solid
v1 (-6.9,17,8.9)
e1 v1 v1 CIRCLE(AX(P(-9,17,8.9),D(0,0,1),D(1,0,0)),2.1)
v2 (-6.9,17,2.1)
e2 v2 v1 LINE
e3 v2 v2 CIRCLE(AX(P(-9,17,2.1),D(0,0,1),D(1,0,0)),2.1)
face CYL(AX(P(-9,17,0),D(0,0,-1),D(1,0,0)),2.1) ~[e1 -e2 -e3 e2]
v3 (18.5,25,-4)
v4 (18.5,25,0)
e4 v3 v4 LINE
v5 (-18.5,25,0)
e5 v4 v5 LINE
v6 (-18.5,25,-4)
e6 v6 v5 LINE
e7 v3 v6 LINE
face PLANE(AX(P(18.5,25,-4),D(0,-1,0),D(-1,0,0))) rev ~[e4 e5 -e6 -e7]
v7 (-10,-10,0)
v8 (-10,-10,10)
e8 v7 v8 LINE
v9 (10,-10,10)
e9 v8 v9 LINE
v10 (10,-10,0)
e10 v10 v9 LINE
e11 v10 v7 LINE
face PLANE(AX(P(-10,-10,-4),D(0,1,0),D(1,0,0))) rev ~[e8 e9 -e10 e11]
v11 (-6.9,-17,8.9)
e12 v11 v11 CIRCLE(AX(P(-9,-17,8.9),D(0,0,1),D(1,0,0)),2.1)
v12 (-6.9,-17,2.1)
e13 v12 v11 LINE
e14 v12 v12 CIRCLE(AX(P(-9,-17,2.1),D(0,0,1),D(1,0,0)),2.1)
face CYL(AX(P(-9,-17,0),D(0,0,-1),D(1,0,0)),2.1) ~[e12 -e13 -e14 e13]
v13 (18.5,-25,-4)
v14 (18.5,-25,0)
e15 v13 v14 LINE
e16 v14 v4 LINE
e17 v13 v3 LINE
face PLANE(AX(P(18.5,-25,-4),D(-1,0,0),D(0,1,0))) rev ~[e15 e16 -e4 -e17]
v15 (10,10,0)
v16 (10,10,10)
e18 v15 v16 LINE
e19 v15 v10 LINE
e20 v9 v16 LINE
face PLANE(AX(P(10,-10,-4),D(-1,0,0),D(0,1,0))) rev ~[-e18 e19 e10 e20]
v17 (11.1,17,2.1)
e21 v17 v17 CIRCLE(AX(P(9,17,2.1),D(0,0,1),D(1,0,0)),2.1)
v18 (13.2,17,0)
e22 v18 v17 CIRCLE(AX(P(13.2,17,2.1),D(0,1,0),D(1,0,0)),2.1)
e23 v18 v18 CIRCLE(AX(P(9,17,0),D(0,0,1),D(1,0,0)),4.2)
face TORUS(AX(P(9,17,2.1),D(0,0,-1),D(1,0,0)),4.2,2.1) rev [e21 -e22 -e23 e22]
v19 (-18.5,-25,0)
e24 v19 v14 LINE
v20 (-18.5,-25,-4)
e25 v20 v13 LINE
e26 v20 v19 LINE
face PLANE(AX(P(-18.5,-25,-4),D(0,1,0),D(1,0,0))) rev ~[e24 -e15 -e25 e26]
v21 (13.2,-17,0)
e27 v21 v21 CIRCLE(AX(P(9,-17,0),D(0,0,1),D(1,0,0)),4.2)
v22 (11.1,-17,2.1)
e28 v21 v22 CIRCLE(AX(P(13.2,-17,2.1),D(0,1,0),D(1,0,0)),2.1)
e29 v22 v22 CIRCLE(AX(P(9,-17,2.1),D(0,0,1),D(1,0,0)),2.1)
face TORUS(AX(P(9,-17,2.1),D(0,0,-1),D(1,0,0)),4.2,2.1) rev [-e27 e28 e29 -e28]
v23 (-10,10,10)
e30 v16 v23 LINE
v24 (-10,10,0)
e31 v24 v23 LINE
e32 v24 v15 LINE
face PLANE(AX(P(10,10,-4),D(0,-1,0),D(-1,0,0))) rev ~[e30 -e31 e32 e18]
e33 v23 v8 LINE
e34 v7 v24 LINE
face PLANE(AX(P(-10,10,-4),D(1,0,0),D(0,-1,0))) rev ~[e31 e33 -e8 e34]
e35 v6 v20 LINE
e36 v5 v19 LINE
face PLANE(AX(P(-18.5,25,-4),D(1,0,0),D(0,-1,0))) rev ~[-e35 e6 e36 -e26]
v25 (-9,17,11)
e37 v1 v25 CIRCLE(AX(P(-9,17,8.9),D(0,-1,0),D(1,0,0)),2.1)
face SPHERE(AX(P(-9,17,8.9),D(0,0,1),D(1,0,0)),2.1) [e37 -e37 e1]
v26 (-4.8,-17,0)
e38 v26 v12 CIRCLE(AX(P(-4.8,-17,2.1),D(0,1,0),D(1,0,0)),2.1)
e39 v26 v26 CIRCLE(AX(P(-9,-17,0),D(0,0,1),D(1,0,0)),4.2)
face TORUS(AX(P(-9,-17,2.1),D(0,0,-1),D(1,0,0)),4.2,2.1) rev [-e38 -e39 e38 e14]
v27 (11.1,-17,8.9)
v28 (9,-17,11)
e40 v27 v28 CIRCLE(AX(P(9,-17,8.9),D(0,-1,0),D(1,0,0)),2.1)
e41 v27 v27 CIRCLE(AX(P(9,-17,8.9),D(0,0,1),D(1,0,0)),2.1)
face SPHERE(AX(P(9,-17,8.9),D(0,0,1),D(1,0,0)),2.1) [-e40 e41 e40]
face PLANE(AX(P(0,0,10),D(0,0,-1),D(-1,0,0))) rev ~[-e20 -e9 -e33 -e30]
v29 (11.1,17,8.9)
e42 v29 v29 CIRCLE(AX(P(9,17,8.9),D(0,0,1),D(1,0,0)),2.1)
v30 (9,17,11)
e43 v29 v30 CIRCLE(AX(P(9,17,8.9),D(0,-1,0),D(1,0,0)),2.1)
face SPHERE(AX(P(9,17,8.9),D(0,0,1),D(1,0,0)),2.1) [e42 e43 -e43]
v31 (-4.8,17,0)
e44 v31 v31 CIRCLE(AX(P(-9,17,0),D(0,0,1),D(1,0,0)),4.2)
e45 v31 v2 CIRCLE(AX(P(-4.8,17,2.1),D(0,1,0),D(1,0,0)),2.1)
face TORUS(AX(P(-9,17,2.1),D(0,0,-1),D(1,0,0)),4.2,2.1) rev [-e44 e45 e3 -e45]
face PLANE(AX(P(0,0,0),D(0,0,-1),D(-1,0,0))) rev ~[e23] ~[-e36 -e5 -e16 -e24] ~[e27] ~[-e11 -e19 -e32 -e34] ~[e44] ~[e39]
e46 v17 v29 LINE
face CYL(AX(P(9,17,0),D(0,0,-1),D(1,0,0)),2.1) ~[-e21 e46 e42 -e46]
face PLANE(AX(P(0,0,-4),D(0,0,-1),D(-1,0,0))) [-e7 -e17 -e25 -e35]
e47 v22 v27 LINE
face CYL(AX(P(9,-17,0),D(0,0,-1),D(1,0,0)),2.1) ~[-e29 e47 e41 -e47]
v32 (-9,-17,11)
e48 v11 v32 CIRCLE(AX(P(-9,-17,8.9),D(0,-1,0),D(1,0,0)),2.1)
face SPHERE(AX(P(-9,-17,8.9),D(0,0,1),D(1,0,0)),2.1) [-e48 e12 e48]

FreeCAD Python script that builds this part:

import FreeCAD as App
import Part
import Sketcher
from FreeCAD import Vector
Q = App.Units.Quantity


def edges_at(feature, points):
    """Names of the edges that pass closest to the given points."""
    edges = feature.Shape.Edges
    near = lambda p: min(range(len(edges)), key=lambda i: edges[i].distToShape(Part.Vertex(*p))[0])
    return sorted({f"Edge{near(p) + 1}" for p in points})


def add_polygon(sketch, points):
    """Adds a closed chain of lines whose ends are joined by coincident constraints."""
    first, n = sketch.GeometryCount, len(points)
    for a, b in zip(points, points[1:] + points[:1]):
        sketch.addGeometry(Part.LineSegment(App.Vector(*a, 0), App.Vector(*b, 0)), False)
    for i in range(n):
        sketch.addConstraint(Sketcher.Constraint("Coincident", first + i, 2, first + (i + 1) % n, 1))

doc = App.newDocument("Part")
body = doc.addObject("PartDesign::Body", "Body")
body.AllowCompound = True

# Sketch on XY plane
sketch1 = body.newObject("Sketcher::SketchObject", "Sketch")
sketch1.AttachmentSupport = (doc.getObject("XY_Plane"), [""])
sketch1.MapMode = "FlatFace"
add_polygon(sketch1, [(10, 10), (-10, 10), (-10, -10), (10, -10)])  # lines 0-3
sketch1.addGeometry(Part.Circle(Vector(-8, 15, 0), Vector(0, 0, 1), 2), False)  # 4
sketch1.addGeometry(Part.Circle(Vector(8, 15, 0), Vector(0, 0, 1), 2), False)  # 5
sketch1.addGeometry(Part.Circle(Vector(8, -15, 0), Vector(0, 0, 1), 2), False)  # 6
sketch1.addGeometry(Part.Circle(Vector(-8, -15, 0), Vector(0, 0, 1), 2), False)  # 7
sketch1.addConstraint([
    Sketcher.Constraint("Horizontal", 0),
    Sketcher.Constraint("Vertical", 1),
    Sketcher.Constraint("Horizontal", 2),
    Sketcher.Constraint("Vertical", 3),
    Sketcher.Constraint("Equal", 4, 5),
    Sketcher.Constraint("Equal", 5, 6),
    Sketcher.Constraint("Equal", 6, 7),
    Sketcher.Constraint("Symmetric", 4, 3, 6, 3, -1, 1),
    Sketcher.Constraint("Symmetric", 5, 3, 7, 3, -1, 1),
    Sketcher.Constraint("Symmetric", 0, 2, 2, 2, -1, 1),
    Sketcher.Constraint("Symmetric", 4, 3, 5, 3, -2),
    Sketcher.Constraint("Equal", 2, 1),
    Sketcher.Constraint("Diameter", 4, Q("4.05 mm")),
    Sketcher.Constraint("DistanceX", 0, 2, 0, 1, Q("20 mm")),
    Sketcher.Constraint("DistanceY", 0, 2, 4, 3, Q("5 mm")),
    Sketcher.Constraint("DistanceX", 4, 3, -1, 1, Q("8 mm")),
])
pad1 = body.newObject("PartDesign::Pad", "Pad")
pad1.Profile = sketch1
pad1.Length = 12

# Sketch on XY plane
sketch2 = body.newObject("Sketcher::SketchObject", "Sketch001")
sketch2.AttachmentSupport = (doc.getObject("XY_Plane"), [""])
sketch2.MapMode = "FlatFace"
add_polygon(sketch2, [(16, 23), (-16, 23), (-16, -23), (16, -23)])  # lines 0-3
sketch2.addConstraint([
    Sketcher.Constraint("Horizontal", 0),
    Sketcher.Constraint("Vertical", 1),
    Sketcher.Constraint("Horizontal", 2),
    Sketcher.Constraint("Vertical", 3),
    Sketcher.Constraint("Symmetric", 0, 2, 2, 2, -1, 1),
    Sketcher.Constraint("DistanceX", 0, 2, 0, 1, Q("33 mm")),
    Sketcher.Constraint("DistanceY", 1, 2, 1, 1, Q("46 mm")),
])
pad2 = body.newObject("PartDesign::Pad", "Pad001")
pad2.Profile = sketch2
pad2.Length = 4
pad2.Reversed = True

# Sketch on XY plane
sketch3 = body.newObject("Sketcher::SketchObject", "Sketch002")
sketch3.AttachmentSupport = (doc.getObject("XY_Plane"), [""])
sketch3.MapMode = "FlatFace"
add_polygon(sketch3, [(16, 23), (-16, 23), (-16, -23), (16, -23)])  # lines 0-3
add_polygon(sketch3, [(-14, -20), (-14, 20), (14, 20), (14, -20)])  # lines 4-7
sketch3.addConstraint([
    Sketcher.Constraint("Horizontal", 0),
    Sketcher.Constraint("Vertical", 1),
    Sketcher.Constraint("Horizontal", 2),
    Sketcher.Constraint("Vertical", 3),
    Sketcher.Constraint("Vertical", 4),
    Sketcher.Constraint("Horizontal", 5),
    Sketcher.Constraint("Vertical", 6),
    Sketcher.Constraint("Horizontal", 7),
    Sketcher.Constraint("Symmetric", 0, 2, 2, 2, -1, 1),
    Sketcher.Constraint("Symmetric", 4, 2, 6, 2, -1, 1),
    Sketcher.Constraint("DistanceX", 0, 2, 0, 1, Q("33 mm")),
    Sketcher.Constraint("DistanceX", 5, 1, 5, 2, Q("27 mm")),
    Sketcher.Constraint("DistanceY", 1, 2, 1, 1, Q("46 mm")),
    Sketcher.Constraint("DistanceY", 4, 1, 4, 2, Q("40 mm")),
])
pad3 = body.newObject("PartDesign::Pad", "Pad002")
pad3.Profile = sketch3
pad3.Length = 11

# Sketch on XY plane
sketch4 = body.newObject("Sketcher::SketchObject", "Sketch003")
sketch4.AttachmentSupport = (doc.getObject("XY_Plane"), [""])
sketch4.MapMode = "FlatFace"
sketch4.AttachmentOffset = App.Placement(Vector(0, 0, 12), App.Rotation())
add_polygon(sketch4, [(-10, 10), (-10, -10), (10, -10), (10, 10)])  # lines 0-3
sketch4.addGeometry(Part.Circle(Vector(-8, 15, 0), Vector(0, 0, 1), 2), False)  # 4
sketch4.addGeometry(Part.Circle(Vector(8, 15, 0), Vector(0, 0, 1), 2), False)  # 5
sketch4.addGeometry(Part.Circle(Vector(8, -15, 0), Vector(0, 0, 1), 2), False)  # 6
sketch4.addGeometry(Part.Circle(Vector(-8, -15, 0), Vector(0, 0, 1), 2), False)  # 7
sketch4.addConstraint([
    Sketcher.Constraint("Vertical", 0),
    Sketcher.Constraint("Horizontal", 1),
    Sketcher.Constraint("Vertical", 2),
    Sketcher.Constraint("Horizontal", 3),
    Sketcher.Constraint("Equal", 4, 5),
    Sketcher.Constraint("Equal", 5, 6),
    Sketcher.Constraint("Equal", 6, 7),
    Sketcher.Constraint("Symmetric", 4, 3, 6, 3, -1, 1),
    Sketcher.Constraint("Symmetric", 5, 3, 7, 3, -1, 1),
    Sketcher.Constraint("Symmetric", 0, 2, 2, 2, -1, 1),
    Sketcher.Constraint("Symmetric", 4, 3, 5, 3, -2),
    Sketcher.Constraint("Equal", 3, 0),
    Sketcher.Constraint("Diameter", 4, Q("4.05 mm")),
    Sketcher.Constraint("DistanceX", 1, 1, 1, 2, Q("20 mm")),
    Sketcher.Constraint("DistanceX", 4, 3, -1, 1, Q("8 mm")),
    Sketcher.Constraint("DistanceY", -1, 1, 4, 3, Q("15 mm")),
])
pocket1 = body.newObject("PartDesign::Pocket", "Pocket")
pocket1.Profile = sketch4
pocket1.Length = 16

# Sketch on XY plane
sketch5 = body.newObject("Sketcher::SketchObject", "Sketch004")
sketch5.AttachmentSupport = (doc.getObject("XY_Plane"), [""])
sketch5.MapMode = "FlatFace"
sketch5.AttachmentOffset = App.Placement(Vector(0, 0, -4), App.Rotation())
add_polygon(sketch5, [(10, 10), (10, -10), (-10, -10), (-10, 10)])  # lines 0-3
sketch5.addConstraint([
    Sketcher.Constraint("Vertical", 0),
    Sketcher.Constraint("Horizontal", 1),
    Sketcher.Constraint("Vertical", 2),
    Sketcher.Constraint("Horizontal", 3),
    Sketcher.Constraint("Symmetric", 0, 2, 2, 2, -1, 1),
    Sketcher.Constraint("Equal", 3, 0),
    Sketcher.Constraint("DistanceX", 1, 2, 1, 1, Q("20 mm")),
])
pad4 = body.newObject("PartDesign::Pad", "Pad003")
pad4.Profile = sketch5
pad4.Length = 14

# Sketch on XY plane
sketch6 = body.newObject("Sketcher::SketchObject", "Sketch005")
sketch6.AttachmentSupport = (doc.getObject("XY_Plane"), [""])
sketch6.MapMode = "FlatFace"
sketch6.AttachmentOffset = App.Placement(Vector(0, 0, 11), App.Rotation())
add_polygon(sketch6, [(-16, 23), (-16, -23), (16, -23), (16, 23)])  # lines 0-3
add_polygon(sketch6, [(-14, -20), (-14, 20), (14, 20), (14, -20)])  # lines 4-7
sketch6.addConstraint([
    Sketcher.Constraint("Vertical", 0),
    Sketcher.Constraint("Horizontal", 1),
    Sketcher.Constraint("Vertical", 2),
    Sketcher.Constraint("Horizontal", 3),
    Sketcher.Constraint("Vertical", 4),
    Sketcher.Constraint("Horizontal", 5),
    Sketcher.Constraint("Vertical", 6),
    Sketcher.Constraint("Horizontal", 7),
    Sketcher.Constraint("Symmetric", 0, 2, 2, 2, -1, 1),
    Sketcher.Constraint("Symmetric", 4, 2, 6, 2, -1, 1),
    Sketcher.Constraint("DistanceX", 1, 1, 1, 2, Q("33 mm")),
    Sketcher.Constraint("DistanceX", 5, 1, 5, 2, Q("27 mm")),
    Sketcher.Constraint("DistanceY", 0, 2, 0, 1, Q("46 mm")),
    Sketcher.Constraint("DistanceY", 4, 1, 4, 2, Q("40 mm")),
])
pocket2 = body.newObject("PartDesign::Pocket", "Pocket001")
pocket2.Profile = sketch6
pocket2.Length = 11

# Sketch on XY plane
sketch7 = body.newObject("Sketcher::SketchObject", "Sketch006")
sketch7.AttachmentSupport = (doc.getObject("XY_Plane"), [""])
sketch7.MapMode = "FlatFace"
sketch7.AttachmentOffset = App.Placement(Vector(0, 0, -4), App.Rotation())
sketch7.addGeometry([
    Part.Circle(Vector(8, -15, 0), Vector(0, 0, 1), 2),
    Part.Circle(Vector(-8, -15, 0), Vector(0, 0, 1), 2),
    Part.Circle(Vector(8, 15, 0), Vector(0, 0, 1), 2),
    Part.Circle(Vector(-8, 15, 0), Vector(0, 0, 1), 2),
], False)
sketch7.addConstraint([
    Sketcher.Constraint("Equal", 0, 1),
    Sketcher.Constraint("Equal", 1, 2),
    Sketcher.Constraint("Equal", 2, 3),
    Sketcher.Constraint("Symmetric", 1, 3, 2, 3, -1, 1),
    Sketcher.Constraint("Symmetric", 0, 3, 3, 3, -1, 1),
    Sketcher.Constraint("Symmetric", 0, 3, 1, 3, -2),
    Sketcher.Constraint("Diameter", 0, Q("4.05 mm")),
    Sketcher.Constraint("DistanceX", -1, 1, 0, 3, Q("8 mm")),
    Sketcher.Constraint("DistanceY", 0, 3, -1, 1, Q("15 mm")),
])
pad5 = body.newObject("PartDesign::Pad", "Pad004")
pad5.Profile = sketch7
pad5.Length = 4

# Sketch on XY plane
sketch8 = body.newObject("Sketcher::SketchObject", "Sketch007")
sketch8.AttachmentSupport = (doc.getObject("XY_Plane"), [""])
sketch8.MapMode = "FlatFace"
sketch8.addGeometry([
    Part.Circle(Vector(-9, 17, 0), Vector(0, 0, 1), 2.1),
    Part.Circle(Vector(9, 17, 0), Vector(0, 0, 1), 2.1),
    Part.Circle(Vector(-9, -17, 0), Vector(0, 0, 1), 2.1),
    Part.Circle(Vector(9, -17, 0), Vector(0, 0, 1), 2.1),
], False)
sketch8.addConstraint([
    Sketcher.Constraint("Equal", 0, 1),
    Sketcher.Constraint("Equal", 1, 2),
    Sketcher.Constraint("Equal", 2, 3),
    Sketcher.Constraint("Symmetric", 1, 3, 2, 3, -1, 1),
    Sketcher.Constraint("Symmetric", 0, 3, 3, 3, -1, 1),
    Sketcher.Constraint("Symmetric", 0, 3, 1, 3, -2),
    Sketcher.Constraint("Diameter", 0, Q("4.2 mm")),
    Sketcher.Constraint("DistanceX", 0, 3, -1, 1, Q("9 mm")),
    Sketcher.Constraint("DistanceY", -1, 1, 0, 3, Q("17 mm")),
])
pad6 = body.newObject("PartDesign::Pad", "Pad005")
pad6.Profile = sketch8
pad6.Length = 11
doc.recompute()

fillet = body.newObject("PartDesign::Fillet", "Fillet")
fillet.Base = (pad6, edges_at(pad6, [
    (-11.1, -17, 11),
    (6.9, -17, 11),
    (6.9, 17, 11),
    (-11.1, 17, 11),
]))
fillet.Radius = 2.1

# Sketch on XY plane
sketch9 = body.newObject("Sketcher::SketchObject", "Sketch008")
sketch9.AttachmentSupport = (doc.getObject("XY_Plane"), [""])
sketch9.MapMode = "FlatFace"
sketch9.AttachmentOffset = App.Placement(Vector(0, 0, -4), App.Rotation())
add_polygon(sketch9, [(18, -25), (-18, -25), (-18, 25), (18, 25)])  # lines 0-3
add_polygon(sketch9, [(-16, 23), (-16, -23), (16, -23), (16, 23)])  # lines 4-7
sketch9.addConstraint([
    Sketcher.Constraint("Horizontal", 0),
    Sketcher.Constraint("Vertical", 1),
    Sketcher.Constraint("Horizontal", 2),
    Sketcher.Constraint("Vertical", 3),
    Sketcher.Constraint("Vertical", 4),
    Sketcher.Constraint("Horizontal", 5),
    Sketcher.Constraint("Vertical", 6),
    Sketcher.Constraint("Horizontal", 7),
    Sketcher.Constraint("Symmetric", 0, 2, 2, 2, -1, 1),
    Sketcher.Constraint("Symmetric", 4, 2, 6, 2, -1, 1),
    Sketcher.Constraint("DistanceX", 0, 2, 0, 1, Q("37 mm")),
    Sketcher.Constraint("DistanceY", 1, 1, 1, 2, Q("50 mm")),
    Sketcher.Constraint("DistanceX", 0, 2, 4, 2, Q("2 mm")),
    Sketcher.Constraint("DistanceY", 0, 2, 4, 2, Q("2 mm")),
])
pad7 = body.newObject("PartDesign::Pad", "Pad006")
pad7.Profile = sketch9
pad7.Length = 4
doc.recompute()

fillet2 = body.newObject("PartDesign::Fillet", "Fillet001")
fillet2.Base = (pad7, edges_at(pad7, [
    (6.9, 17, 0),
    (-11.1, 17, 0),
    (6.9, -17, 0),
    (-11.1, -17, 0),
]))
fillet2.Radius = 2.1

doc.recompute()
